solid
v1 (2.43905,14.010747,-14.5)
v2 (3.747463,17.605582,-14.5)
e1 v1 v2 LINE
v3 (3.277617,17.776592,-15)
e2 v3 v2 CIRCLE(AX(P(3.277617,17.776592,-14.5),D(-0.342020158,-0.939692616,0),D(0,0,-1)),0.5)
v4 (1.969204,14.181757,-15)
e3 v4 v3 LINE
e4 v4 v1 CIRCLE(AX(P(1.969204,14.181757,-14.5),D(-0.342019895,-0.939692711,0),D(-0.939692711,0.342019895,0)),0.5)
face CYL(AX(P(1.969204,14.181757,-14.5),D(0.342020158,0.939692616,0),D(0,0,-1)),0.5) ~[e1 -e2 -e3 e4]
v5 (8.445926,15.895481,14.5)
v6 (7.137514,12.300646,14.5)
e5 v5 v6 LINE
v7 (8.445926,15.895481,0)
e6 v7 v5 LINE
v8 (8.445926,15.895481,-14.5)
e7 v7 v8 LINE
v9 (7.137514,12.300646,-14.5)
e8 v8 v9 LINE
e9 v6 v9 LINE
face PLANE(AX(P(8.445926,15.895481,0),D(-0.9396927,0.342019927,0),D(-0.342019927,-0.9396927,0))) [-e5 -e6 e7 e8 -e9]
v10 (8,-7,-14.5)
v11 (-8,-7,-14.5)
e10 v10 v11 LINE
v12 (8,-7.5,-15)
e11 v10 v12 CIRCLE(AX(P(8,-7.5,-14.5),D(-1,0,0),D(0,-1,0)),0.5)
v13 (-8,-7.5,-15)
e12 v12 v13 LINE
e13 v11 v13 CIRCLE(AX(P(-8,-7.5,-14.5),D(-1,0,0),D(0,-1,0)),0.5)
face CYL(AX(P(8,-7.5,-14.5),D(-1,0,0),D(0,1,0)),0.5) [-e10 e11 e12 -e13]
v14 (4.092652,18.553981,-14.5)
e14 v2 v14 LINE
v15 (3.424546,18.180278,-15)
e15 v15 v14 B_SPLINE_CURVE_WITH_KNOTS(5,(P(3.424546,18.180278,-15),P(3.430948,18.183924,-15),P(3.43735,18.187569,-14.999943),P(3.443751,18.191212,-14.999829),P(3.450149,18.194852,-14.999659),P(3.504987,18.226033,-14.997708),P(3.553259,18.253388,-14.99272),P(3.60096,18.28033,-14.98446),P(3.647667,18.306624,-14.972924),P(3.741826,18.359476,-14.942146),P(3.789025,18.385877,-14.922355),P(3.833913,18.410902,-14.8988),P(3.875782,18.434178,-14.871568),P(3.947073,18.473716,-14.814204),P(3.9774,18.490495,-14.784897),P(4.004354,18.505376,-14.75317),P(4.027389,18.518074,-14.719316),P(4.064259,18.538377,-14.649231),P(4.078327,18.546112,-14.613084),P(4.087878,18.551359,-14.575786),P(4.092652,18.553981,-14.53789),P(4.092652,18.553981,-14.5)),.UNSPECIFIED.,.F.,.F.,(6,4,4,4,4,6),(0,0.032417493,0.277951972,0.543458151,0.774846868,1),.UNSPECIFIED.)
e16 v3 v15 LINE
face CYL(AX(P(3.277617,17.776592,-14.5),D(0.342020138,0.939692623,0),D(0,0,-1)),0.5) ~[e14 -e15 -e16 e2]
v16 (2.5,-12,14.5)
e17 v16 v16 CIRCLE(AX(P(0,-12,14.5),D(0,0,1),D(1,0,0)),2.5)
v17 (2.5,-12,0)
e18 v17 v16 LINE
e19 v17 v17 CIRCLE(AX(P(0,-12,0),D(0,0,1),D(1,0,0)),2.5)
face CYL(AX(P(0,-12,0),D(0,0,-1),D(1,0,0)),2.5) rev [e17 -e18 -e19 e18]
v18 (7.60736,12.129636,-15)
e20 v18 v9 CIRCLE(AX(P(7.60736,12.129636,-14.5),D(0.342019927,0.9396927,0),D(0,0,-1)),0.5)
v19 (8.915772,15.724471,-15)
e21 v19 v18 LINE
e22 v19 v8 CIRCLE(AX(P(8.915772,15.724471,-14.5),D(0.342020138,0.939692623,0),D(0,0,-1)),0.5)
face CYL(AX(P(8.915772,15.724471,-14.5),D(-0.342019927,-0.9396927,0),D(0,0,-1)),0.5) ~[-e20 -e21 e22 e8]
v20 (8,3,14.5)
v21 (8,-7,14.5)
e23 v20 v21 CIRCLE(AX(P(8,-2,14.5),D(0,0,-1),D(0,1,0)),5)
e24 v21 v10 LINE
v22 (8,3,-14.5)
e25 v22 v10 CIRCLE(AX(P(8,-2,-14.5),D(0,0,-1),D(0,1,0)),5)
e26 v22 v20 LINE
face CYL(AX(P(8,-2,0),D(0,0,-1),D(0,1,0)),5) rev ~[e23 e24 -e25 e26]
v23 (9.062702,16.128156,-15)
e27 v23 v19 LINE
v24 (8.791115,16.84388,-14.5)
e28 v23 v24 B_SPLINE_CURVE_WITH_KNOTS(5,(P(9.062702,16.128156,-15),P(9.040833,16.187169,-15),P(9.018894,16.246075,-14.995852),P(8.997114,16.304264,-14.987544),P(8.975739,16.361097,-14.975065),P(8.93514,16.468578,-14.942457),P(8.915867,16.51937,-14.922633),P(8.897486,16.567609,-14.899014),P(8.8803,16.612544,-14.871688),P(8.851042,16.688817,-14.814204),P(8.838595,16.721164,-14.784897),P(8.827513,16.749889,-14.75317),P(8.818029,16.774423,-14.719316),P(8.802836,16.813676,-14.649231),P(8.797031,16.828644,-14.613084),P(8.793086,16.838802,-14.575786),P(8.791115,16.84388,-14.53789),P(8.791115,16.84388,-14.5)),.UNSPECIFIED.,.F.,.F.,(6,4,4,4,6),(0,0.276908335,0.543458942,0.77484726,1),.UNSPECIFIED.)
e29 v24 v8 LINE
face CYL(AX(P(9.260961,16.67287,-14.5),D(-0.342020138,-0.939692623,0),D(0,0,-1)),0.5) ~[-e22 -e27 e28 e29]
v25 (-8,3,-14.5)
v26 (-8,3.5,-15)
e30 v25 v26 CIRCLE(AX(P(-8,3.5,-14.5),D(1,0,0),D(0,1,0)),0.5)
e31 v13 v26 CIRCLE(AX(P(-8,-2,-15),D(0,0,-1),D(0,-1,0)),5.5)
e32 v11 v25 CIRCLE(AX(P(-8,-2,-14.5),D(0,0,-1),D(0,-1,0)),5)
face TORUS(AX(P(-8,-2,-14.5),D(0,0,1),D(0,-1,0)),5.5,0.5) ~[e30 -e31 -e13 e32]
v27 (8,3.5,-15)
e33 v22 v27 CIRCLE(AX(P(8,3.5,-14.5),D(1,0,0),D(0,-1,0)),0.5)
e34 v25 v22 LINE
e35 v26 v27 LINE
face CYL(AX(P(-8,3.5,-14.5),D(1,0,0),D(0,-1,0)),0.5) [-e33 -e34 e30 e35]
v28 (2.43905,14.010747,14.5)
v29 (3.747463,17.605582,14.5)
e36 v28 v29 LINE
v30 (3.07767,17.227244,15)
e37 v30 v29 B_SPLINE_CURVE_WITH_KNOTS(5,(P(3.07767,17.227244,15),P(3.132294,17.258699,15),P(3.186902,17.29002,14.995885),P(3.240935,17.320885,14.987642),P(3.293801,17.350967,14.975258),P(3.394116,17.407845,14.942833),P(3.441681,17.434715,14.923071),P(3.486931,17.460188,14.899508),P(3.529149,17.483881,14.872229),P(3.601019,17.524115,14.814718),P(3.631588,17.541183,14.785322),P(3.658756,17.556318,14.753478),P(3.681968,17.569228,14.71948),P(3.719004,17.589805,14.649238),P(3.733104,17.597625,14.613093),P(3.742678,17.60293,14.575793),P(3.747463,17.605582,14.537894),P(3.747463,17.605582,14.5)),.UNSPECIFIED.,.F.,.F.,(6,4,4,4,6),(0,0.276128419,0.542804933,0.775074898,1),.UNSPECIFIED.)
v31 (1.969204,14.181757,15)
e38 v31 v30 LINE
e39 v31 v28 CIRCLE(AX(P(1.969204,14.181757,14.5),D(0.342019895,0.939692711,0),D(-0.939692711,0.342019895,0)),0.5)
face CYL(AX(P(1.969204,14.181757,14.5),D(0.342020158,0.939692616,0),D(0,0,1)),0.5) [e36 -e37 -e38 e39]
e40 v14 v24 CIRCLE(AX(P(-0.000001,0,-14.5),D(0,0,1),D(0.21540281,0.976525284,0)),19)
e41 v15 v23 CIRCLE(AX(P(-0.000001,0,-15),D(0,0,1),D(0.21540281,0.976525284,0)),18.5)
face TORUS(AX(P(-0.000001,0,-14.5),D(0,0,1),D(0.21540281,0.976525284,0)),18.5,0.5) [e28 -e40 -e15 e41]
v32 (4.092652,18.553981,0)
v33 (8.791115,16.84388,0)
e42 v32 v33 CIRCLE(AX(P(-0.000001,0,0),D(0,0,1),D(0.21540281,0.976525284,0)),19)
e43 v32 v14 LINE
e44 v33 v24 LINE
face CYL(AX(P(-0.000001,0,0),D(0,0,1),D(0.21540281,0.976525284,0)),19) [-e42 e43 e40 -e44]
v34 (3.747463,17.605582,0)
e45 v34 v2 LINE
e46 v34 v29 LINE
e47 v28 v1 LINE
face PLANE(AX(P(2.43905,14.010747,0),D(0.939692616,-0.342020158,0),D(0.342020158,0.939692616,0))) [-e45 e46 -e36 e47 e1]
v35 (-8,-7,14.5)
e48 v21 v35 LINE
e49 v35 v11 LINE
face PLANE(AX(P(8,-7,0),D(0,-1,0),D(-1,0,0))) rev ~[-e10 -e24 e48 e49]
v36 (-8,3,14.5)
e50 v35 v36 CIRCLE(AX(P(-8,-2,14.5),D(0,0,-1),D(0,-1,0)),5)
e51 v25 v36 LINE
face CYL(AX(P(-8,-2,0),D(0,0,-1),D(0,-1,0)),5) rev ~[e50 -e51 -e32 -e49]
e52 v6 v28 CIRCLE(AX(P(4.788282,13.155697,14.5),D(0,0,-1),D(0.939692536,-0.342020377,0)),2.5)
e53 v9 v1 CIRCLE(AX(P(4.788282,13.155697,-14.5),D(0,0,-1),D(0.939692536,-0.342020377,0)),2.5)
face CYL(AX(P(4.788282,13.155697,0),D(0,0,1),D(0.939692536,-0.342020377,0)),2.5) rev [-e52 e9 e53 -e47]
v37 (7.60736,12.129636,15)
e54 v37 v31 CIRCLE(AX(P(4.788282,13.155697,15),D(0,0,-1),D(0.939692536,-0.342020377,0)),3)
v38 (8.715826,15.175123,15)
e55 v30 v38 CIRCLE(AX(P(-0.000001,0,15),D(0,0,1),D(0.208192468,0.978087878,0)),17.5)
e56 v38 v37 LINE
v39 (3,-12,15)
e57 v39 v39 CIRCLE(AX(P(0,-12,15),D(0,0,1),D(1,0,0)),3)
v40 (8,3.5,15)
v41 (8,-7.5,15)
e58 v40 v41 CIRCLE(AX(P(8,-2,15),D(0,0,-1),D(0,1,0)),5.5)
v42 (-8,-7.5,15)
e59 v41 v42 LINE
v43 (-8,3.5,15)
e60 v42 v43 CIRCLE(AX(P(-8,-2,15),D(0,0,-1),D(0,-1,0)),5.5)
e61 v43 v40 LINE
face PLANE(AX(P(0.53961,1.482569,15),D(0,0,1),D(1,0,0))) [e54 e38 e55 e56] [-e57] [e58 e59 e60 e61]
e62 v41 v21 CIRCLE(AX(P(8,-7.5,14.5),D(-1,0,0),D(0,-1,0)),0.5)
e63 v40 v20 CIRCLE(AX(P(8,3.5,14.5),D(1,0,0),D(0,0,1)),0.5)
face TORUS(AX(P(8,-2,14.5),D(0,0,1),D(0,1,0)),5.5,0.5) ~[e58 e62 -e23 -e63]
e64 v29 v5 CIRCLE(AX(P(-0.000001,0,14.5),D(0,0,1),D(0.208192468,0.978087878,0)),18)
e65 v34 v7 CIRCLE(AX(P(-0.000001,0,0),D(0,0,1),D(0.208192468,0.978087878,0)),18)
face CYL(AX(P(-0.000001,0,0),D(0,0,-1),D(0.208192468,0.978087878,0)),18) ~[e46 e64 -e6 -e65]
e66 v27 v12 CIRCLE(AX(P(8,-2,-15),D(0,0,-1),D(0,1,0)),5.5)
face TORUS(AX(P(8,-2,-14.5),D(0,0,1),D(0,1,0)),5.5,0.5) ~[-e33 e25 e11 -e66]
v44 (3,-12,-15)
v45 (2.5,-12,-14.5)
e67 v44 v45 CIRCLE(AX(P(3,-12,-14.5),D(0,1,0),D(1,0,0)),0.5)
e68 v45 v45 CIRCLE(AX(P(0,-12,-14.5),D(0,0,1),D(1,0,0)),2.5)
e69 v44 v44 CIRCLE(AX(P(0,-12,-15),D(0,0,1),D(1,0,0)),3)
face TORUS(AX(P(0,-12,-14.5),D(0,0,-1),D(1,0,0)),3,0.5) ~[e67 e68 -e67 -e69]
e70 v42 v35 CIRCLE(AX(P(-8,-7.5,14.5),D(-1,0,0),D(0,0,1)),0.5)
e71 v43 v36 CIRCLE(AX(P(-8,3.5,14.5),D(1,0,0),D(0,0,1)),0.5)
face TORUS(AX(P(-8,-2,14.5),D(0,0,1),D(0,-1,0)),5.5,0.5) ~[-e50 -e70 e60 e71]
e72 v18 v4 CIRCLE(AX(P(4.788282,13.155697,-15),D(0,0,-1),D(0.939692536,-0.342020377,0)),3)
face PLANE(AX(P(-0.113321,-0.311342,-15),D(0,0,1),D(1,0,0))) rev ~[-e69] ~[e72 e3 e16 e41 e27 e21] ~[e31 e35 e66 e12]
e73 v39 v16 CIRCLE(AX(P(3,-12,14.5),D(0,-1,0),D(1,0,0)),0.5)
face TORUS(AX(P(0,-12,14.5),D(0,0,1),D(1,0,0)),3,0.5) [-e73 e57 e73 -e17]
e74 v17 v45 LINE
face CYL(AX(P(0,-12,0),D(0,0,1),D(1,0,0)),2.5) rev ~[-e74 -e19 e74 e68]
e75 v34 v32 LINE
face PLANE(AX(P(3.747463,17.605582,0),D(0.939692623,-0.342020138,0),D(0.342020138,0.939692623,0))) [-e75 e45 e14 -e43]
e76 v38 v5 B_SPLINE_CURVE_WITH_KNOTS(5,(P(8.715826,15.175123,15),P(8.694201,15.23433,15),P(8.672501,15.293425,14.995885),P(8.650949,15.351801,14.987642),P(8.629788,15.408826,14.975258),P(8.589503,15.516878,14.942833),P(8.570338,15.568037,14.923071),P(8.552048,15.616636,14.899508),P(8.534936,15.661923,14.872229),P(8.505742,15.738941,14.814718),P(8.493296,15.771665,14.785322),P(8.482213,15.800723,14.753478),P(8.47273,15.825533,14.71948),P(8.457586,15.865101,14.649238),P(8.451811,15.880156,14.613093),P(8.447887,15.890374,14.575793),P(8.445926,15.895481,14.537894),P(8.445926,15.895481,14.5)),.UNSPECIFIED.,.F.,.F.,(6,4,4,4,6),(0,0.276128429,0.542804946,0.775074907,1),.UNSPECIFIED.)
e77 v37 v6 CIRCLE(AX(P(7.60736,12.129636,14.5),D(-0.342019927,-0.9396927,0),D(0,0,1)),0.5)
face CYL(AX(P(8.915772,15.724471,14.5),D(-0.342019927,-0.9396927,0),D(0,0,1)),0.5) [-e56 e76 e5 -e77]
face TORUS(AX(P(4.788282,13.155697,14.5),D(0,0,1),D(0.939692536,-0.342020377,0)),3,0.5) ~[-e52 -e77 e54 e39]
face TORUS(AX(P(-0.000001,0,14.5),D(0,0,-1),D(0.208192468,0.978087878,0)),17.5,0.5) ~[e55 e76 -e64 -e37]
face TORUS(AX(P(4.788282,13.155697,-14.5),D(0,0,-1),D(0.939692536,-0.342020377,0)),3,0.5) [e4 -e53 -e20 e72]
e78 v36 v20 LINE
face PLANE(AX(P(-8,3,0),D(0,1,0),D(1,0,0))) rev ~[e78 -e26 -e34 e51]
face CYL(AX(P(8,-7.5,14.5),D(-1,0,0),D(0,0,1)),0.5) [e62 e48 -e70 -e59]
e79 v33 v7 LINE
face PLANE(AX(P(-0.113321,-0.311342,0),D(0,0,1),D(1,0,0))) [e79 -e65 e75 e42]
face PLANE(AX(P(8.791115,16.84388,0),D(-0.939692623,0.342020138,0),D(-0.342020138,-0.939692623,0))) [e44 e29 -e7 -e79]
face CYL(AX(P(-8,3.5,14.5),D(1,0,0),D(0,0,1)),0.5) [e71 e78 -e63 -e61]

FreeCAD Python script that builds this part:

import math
import FreeCAD as App
import Part
import Sketcher
from FreeCAD import Vector
Q = App.Units.Quantity


def edges_at(feature, points):
    """Names of the edges that pass closest to the given points."""
    edges = feature.Shape.Edges
    near = lambda p: min(range(len(edges)), key=lambda i: edges[i].distToShape(Part.Vertex(*p))[0])
    return sorted({f"Edge{near(p) + 1}" for p in points})

doc = App.newDocument("Part")
body = doc.addObject("PartDesign::Body", "Body")

sketch1 = body.newObject("Sketcher::SketchObject", "Sketch")
sketch1.AttachmentSupport = (doc.getObject("XY_Plane"), [""])
sketch1.MapMode = "FlatFace"
sketch1.addGeometry(Part.LineSegment(Vector(2.4, 14, 0), Vector(3.7, 17.6, 0)), False)
sketch1.addGeometry(Part.ArcOfCircle(Part.Circle(Vector(0, 0, 0), Vector(0, 0, 1), 18), math.radians(78), math.radians(422)), False)
sketch1.addGeometry(Part.LineSegment(Vector(8.4, 15.9, 0), Vector(7.1, 12.3, 0)), False)
sketch1.addGeometry(Part.ArcOfCircle(Part.Circle(Vector(4.8, 13.2, 0), Vector(0, 0, 1), 2.5), math.radians(160), math.radians(340)), False)
sketch1.addGeometry(Part.Circle(Vector(0, -12, 0), Vector(0, 0, 1), 2.5), False)
sketch1.addGeometry(Part.LineSegment(Vector(8, -7, 0), Vector(-8, -7, 0)), False)
sketch1.addGeometry(Part.ArcOfCircle(Part.Circle(Vector(-8, -2, 0), Vector(0, 0, 1), 5), math.radians(90), math.radians(270)), False)
sketch1.addGeometry(Part.LineSegment(Vector(-8, 3, 0), Vector(8, 3, 0)), False)
sketch1.addGeometry(Part.ArcOfCircle(Part.Circle(Vector(8, -2, 0), Vector(0, 0, 1), 5), math.radians(-90), math.radians(90)), False)
sketch1.addConstraint(Sketcher.Constraint("Coincident", 0, 2, 1, 1))
sketch1.addConstraint(Sketcher.Constraint("Coincident", 1, 2, 2, 1))
sketch1.addConstraint(Sketcher.Constraint("Tangent", 2, 2, 3, 2))
sketch1.addConstraint(Sketcher.Constraint("Tangent", 3, 1, 0, 1))
sketch1.addConstraint(Sketcher.Constraint("Tangent", 5, 2, 6, 2))
sketch1.addConstraint(Sketcher.Constraint("Tangent", 6, 1, 7, 1))
sketch1.addConstraint(Sketcher.Constraint("Tangent", 7, 2, 8, 2))
sketch1.addConstraint(Sketcher.Constraint("Tangent", 8, 1, 5, 1))
sketch1.addConstraint(Sketcher.Constraint("Horizontal", 5))
sketch1.addConstraint(Sketcher.Constraint("Horizontal", 7))
sketch1.addConstraint(Sketcher.Constraint("Coincident", 1, 3, -1, 1))
sketch1.addConstraint(Sketcher.Constraint("Equal", 3, 4))
sketch1.addConstraint(Sketcher.Constraint("PointOnObject", 4, 3, -2))
sketch1.addConstraint(Sketcher.Constraint("Parallel", 0, 2))
sketch1.addConstraint(Sketcher.Constraint("Equal", 0, 2))
sketch1.addConstraint(Sketcher.Constraint("Diameter", 4, 5.0))
sketch1.addConstraint(Sketcher.Constraint("Radius", 1, 18.0))
sketch1.addConstraint(Sketcher.Constraint("Radius", 6, 5.0))
sketch1.addConstraint(Sketcher.Constraint("DistanceX", 5, 2, 5, 1, 16.0))
sketch1.addConstraint(Sketcher.Constraint("Angle", 0, Q("69.999999 deg")))
sketch1.addConstraint(Sketcher.Constraint("DistanceY", 4, 3, -1, 1, 12.0))
sketch1.addConstraint(Sketcher.Constraint("DistanceX", 6, 3, -1, 1, 8.0))
sketch1.addConstraint(Sketcher.Constraint("DistanceY", 6, 3, -1, 1, 2.0))
sketch1.addConstraint(Sketcher.Constraint("DistanceX", -1, 1, 3, 1, 2.43905))
pad1 = body.newObject("PartDesign::Pad", "Pad")
pad1.Profile = sketch1
pad1.Length = 15

sketch2 = body.newObject("Sketcher::SketchObject", "Sketch001")
sketch2.AttachmentSupport = (doc.getObject("XY_Plane"), [""])
sketch2.MapMode = "FlatFace"
sketch2.addGeometry(Part.LineSegment(Vector(3.7, 17.6, 0), Vector(4.1, 18.6, 0)), False)
sketch2.addGeometry(Part.ArcOfCircle(Part.Circle(Vector(0, 0, 0), Vector(0, 0, 1), 19), math.radians(78), math.radians(422)), False)
sketch2.addGeometry(Part.LineSegment(Vector(8.8, 16.8, 0), Vector(8.4, 15.9, 0)), False)
sketch2.addGeometry(Part.LineSegment(Vector(8.4, 15.9, 0), Vector(7.1, 12.3, 0)), False)
sketch2.addGeometry(Part.ArcOfCircle(Part.Circle(Vector(4.8, 13.2, 0), Vector(0, 0, 1), 2.5), math.radians(160), math.radians(340)), False)
sketch2.addGeometry(Part.LineSegment(Vector(2.4, 14, 0), Vector(3.7, 17.6, 0)), False)
sketch2.addGeometry(Part.Circle(Vector(0, -12, 0), Vector(0, 0, 1), 2.5), False)
sketch2.addGeometry(Part.LineSegment(Vector(8, -7, 0), Vector(-8, -7, 0)), False)
sketch2.addGeometry(Part.ArcOfCircle(Part.Circle(Vector(-8, -2, 0), Vector(0, 0, 1), 5), math.radians(90), math.radians(270)), False)
sketch2.addGeometry(Part.LineSegment(Vector(-8, 3, 0), Vector(8, 3, 0)), False)
sketch2.addGeometry(Part.ArcOfCircle(Part.Circle(Vector(8, -2, 0), Vector(0, 0, 1), 5), math.radians(-90), math.radians(90)), False)
sketch2.addConstraint(Sketcher.Constraint("Coincident", 0, 2, 1, 1))
sketch2.addConstraint(Sketcher.Constraint("Coincident", 1, 2, 2, 1))
sketch2.addConstraint(Sketcher.Constraint("Coincident", 2, 2, 3, 1))
sketch2.addConstraint(Sketcher.Constraint("Tangent", 3, 2, 4, 2))
sketch2.addConstraint(Sketcher.Constraint("Tangent", 4, 1, 5, 1))
sketch2.addConstraint(Sketcher.Constraint("Coincident", 5, 2, 0, 1))
sketch2.addConstraint(Sketcher.Constraint("Tangent", 7, 2, 8, 2))
sketch2.addConstraint(Sketcher.Constraint("Tangent", 8, 1, 9, 1))
sketch2.addConstraint(Sketcher.Constraint("Tangent", 9, 2, 10, 2))
sketch2.addConstraint(Sketcher.Constraint("Tangent", 10, 1, 7, 1))
sketch2.addConstraint(Sketcher.Constraint("Horizontal", 7))
sketch2.addConstraint(Sketcher.Constraint("Horizontal", 9))
sketch2.addConstraint(Sketcher.Constraint("Coincident", 1, 3, -1, 1))
sketch2.addConstraint(Sketcher.Constraint("Equal", 4, 6))
sketch2.addConstraint(Sketcher.Constraint("PointOnObject", 6, 3, -2))
sketch2.addConstraint(Sketcher.Constraint("Parallel", 0, 2))
sketch2.addConstraint(Sketcher.Constraint("Parallel", 2, 3))
sketch2.addConstraint(Sketcher.Constraint("Parallel", 3, 5))
sketch2.addConstraint(Sketcher.Constraint("Equal", 0, 2))
sketch2.addConstraint(Sketcher.Constraint("Equal", 3, 5))
sketch2.addConstraint(Sketcher.Constraint("Diameter", 6, 5.0))
sketch2.addConstraint(Sketcher.Constraint("Radius", 1, 19.0))
sketch2.addConstraint(Sketcher.Constraint("Radius", 8, 5.0))
sketch2.addConstraint(Sketcher.Constraint("DistanceX", 7, 2, 7, 1, 16.0))
sketch2.addConstraint(Sketcher.Constraint("Angle", 0, Q("70 deg")))
sketch2.addConstraint(Sketcher.Constraint("DistanceY", 6, 3, -1, 1, 12.0))
sketch2.addConstraint(Sketcher.Constraint("DistanceX", 8, 3, -1, 1, 8.0))
sketch2.addConstraint(Sketcher.Constraint("DistanceY", 8, 3, -1, 1, 2.0))
sketch2.addConstraint(Sketcher.Constraint("DistanceY", 2, 2, 1, 2, 0.948399))
sketch2.addConstraint(Sketcher.Constraint("DistanceX", 3, 2, 1, 2, 1.653601))
pad2 = body.newObject("PartDesign::Pad", "Pad001")
pad2.Profile = sketch2
pad2.Length = 15
pad2.Reversed = True
doc.recompute()

fillet = body.newObject("PartDesign::Fillet", "Fillet")
fillet.Base = (pad2, edges_at(pad2, [
    (7.792, 14.098, 15),
    (3.933, 10.806, 15),
    (3.093, 15.808, 15),
    (-6.156, -16.914, 15),
    (-2.5, -12, 15),
    (0, 3, 15),
    (13, -2, 15),
    (0, -7, 15),
    (-13, -2, 15),
]))
fillet.Radius = 0.5
doc.recompute()

fillet2 = body.newObject("PartDesign::Fillet", "Fillet001")
fillet2.Base = (fillet, edges_at(fillet, [
    (7.792, 14.098, -15),
    (3.933, 10.806, -15),
    (3.093, 15.808, -15),
    (-6.498, -17.854, -15),
    (-13, -2, -15),
    (0, 3, -15),
    (13, -2, -15),
    (0, -7, -15),
    (-2.5, -12, -15),
]))
fillet2.Radius = 0.5

doc.recompute()
